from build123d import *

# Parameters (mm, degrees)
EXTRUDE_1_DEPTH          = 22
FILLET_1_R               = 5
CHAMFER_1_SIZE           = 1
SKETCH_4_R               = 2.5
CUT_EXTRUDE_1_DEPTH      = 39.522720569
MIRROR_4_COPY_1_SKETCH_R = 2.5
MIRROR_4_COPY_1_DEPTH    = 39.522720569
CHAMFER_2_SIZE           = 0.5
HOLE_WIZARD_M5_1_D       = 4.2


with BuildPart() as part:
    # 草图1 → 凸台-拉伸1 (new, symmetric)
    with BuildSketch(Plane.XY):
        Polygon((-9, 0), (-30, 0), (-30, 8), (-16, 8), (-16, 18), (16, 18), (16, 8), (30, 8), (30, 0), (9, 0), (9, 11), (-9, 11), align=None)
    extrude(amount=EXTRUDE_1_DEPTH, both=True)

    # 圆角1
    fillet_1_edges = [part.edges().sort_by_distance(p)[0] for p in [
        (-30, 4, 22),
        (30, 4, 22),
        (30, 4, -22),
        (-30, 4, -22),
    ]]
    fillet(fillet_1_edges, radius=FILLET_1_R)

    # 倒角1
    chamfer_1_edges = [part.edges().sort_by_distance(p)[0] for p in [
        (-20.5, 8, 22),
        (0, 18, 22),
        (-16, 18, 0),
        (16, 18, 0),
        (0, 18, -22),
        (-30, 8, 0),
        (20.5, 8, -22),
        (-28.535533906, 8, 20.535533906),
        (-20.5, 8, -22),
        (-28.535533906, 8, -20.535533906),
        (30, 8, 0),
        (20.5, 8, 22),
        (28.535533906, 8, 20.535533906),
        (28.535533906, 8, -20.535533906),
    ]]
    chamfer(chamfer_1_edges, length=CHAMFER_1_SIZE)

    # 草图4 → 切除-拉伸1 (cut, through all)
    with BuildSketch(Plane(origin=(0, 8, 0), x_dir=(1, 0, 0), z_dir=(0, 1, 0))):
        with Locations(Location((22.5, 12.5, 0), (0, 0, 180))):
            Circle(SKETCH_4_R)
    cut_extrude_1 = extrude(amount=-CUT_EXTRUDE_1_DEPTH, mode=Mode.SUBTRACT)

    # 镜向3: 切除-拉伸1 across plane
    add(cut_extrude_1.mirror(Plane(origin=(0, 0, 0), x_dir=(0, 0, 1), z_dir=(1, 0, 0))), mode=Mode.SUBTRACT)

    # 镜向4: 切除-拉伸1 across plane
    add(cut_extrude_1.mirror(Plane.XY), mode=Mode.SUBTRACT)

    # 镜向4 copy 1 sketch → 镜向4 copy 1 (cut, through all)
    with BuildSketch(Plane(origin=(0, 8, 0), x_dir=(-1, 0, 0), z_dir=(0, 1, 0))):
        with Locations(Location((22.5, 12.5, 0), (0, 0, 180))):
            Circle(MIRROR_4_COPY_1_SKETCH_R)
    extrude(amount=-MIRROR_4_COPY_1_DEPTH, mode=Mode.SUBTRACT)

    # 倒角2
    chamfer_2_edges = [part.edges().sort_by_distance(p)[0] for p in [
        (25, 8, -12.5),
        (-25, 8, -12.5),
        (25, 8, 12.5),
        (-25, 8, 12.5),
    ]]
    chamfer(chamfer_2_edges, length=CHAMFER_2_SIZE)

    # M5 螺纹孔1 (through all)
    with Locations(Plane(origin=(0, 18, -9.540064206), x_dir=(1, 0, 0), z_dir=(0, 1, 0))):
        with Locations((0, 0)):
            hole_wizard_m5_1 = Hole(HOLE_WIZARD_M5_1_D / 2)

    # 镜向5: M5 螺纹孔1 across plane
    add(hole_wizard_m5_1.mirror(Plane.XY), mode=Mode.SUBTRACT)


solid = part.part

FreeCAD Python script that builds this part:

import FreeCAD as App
import Part
import Sketcher


def edges_at(feature, points):
    """Names of the edges that pass closest to the given points."""
    edges = feature.Shape.Edges
    near = lambda p: min(range(len(edges)), key=lambda i: edges[i].distToShape(Part.Vertex(*p))[0])
    return sorted({f"Edge{near(p) + 1}" for p in points})

doc = App.newDocument("Part")
body = doc.addObject("PartDesign::Body", "Body")

# Sketch on XY plane
sketch1 = body.newObject("Sketcher::SketchObject", "Sketch")
sketch1.AttachmentSupport = (doc.getObject("XY_Plane"), [""])
sketch1.MapMode = "FlatFace"
sketch1.addGeometry(Part.LineSegment(App.Vector(-30, 0, 0), App.Vector(-9, 0, 0)), False)
sketch1.addGeometry(Part.LineSegment(App.Vector(-9, 0, 0), App.Vector(-9, 11, 0)), False)
sketch1.addGeometry(Part.LineSegment(App.Vector(-9, 11, 0), App.Vector(9, 11, 0)), False)
sketch1.addGeometry(Part.LineSegment(App.Vector(9, 11, 0), App.Vector(9, 0, 0)), False)
sketch1.addGeometry(Part.LineSegment(App.Vector(9, 0, 0), App.Vector(30, 0, 0)), False)
sketch1.addGeometry(Part.LineSegment(App.Vector(30, 0, 0), App.Vector(30, 8, 0)), False)
sketch1.addGeometry(Part.LineSegment(App.Vector(30, 8, 0), App.Vector(16, 8, 0)), False)
sketch1.addGeometry(Part.LineSegment(App.Vector(16, 8, 0), App.Vector(16, 18, 0)), False)
sketch1.addGeometry(Part.LineSegment(App.Vector(16, 18, 0), App.Vector(-16, 18, 0)), False)
sketch1.addGeometry(Part.LineSegment(App.Vector(-16, 18, 0), App.Vector(-16, 8, 0)), False)
sketch1.addGeometry(Part.LineSegment(App.Vector(-16, 8, 0), App.Vector(-30, 8, 0)), False)
sketch1.addGeometry(Part.LineSegment(App.Vector(-30, 8, 0), App.Vector(-30, 0, 0)), False)
sketch1.addConstraint(Sketcher.Constraint("Coincident", 0, 2, 1, 1))
sketch1.addConstraint(Sketcher.Constraint("Coincident", 1, 2, 2, 1))
sketch1.addConstraint(Sketcher.Constraint("Coincident", 2, 2, 3, 1))
sketch1.addConstraint(Sketcher.Constraint("Coincident", 3, 2, 4, 1))
sketch1.addConstraint(Sketcher.Constraint("Coincident", 4, 2, 5, 1))
sketch1.addConstraint(Sketcher.Constraint("Coincident", 5, 2, 6, 1))
sketch1.addConstraint(Sketcher.Constraint("Coincident", 6, 2, 7, 1))
sketch1.addConstraint(Sketcher.Constraint("Coincident", 7, 2, 8, 1))
sketch1.addConstraint(Sketcher.Constraint("Coincident", 8, 2, 9, 1))
sketch1.addConstraint(Sketcher.Constraint("Coincident", 9, 2, 10, 1))
sketch1.addConstraint(Sketcher.Constraint("Coincident", 10, 2, 11, 1))
sketch1.addConstraint(Sketcher.Constraint("Coincident", 11, 2, 0, 1))
sketch1.addConstraint(Sketcher.Constraint("Horizontal", 0))
sketch1.addConstraint(Sketcher.Constraint("Vertical", 1))
sketch1.addConstraint(Sketcher.Constraint("Horizontal", 2))
sketch1.addConstraint(Sketcher.Constraint("Vertical", 3))
sketch1.addConstraint(Sketcher.Constraint("Horizontal", 4))
sketch1.addConstraint(Sketcher.Constraint("Vertical", 5))
sketch1.addConstraint(Sketcher.Constraint("Horizontal", 6))
sketch1.addConstraint(Sketcher.Constraint("Vertical", 7))
sketch1.addConstraint(Sketcher.Constraint("Horizontal", 8))
sketch1.addConstraint(Sketcher.Constraint("Vertical", 9))
sketch1.addConstraint(Sketcher.Constraint("Horizontal", 10))
sketch1.addConstraint(Sketcher.Constraint("Vertical", 11))
sketch1.addConstraint(Sketcher.Constraint("Symmetric", 0, 2, 3, 2, -1, 1))
sketch1.addConstraint(Sketcher.Constraint("Symmetric", 6, 2, 9, 2, -2))
sketch1.addConstraint(Sketcher.Constraint("Symmetric", 4, 2, 11, 2, -2))
sketch1.addConstraint(Sketcher.Constraint("DistanceX", 0, 1, 0, 2, 21.0))
sketch1.addConstraint(Sketcher.Constraint("DistanceX", 2, 1, 2, 2, 18.0))
sketch1.addConstraint(Sketcher.Constraint("DistanceX", 6, 2, 6, 1, 14.0))
sketch1.addConstraint(Sketcher.Constraint("DistanceY", 1, 1, 1, 2, 11.0))
sketch1.addConstraint(Sketcher.Constraint("DistanceY", 5, 1, 5, 2, 8.0))
sketch1.addConstraint(Sketcher.Constraint("DistanceY", 7, 1, 7, 2, 10.0))
pad1 = body.newObject("PartDesign::Pad", "Pad")
pad1.Profile = sketch1
pad1.Length = 44
pad1.Midplane = True
doc.recompute()

fillet = body.newObject("PartDesign::Fillet", "Fillet")
fillet.Base = (pad1, edges_at(pad1, [
    (-30, 4, 22),
    (30, 4, 22),
    (30, 4, -22),
    (-30, 4, -22),
]))
fillet.Radius = 5
doc.recompute()

chamfer = body.newObject("PartDesign::Chamfer", "Chamfer")
chamfer.Base = (fillet, edges_at(fillet, [
    (-20.5, 8, 22),
    (0, 18, 22),
    (-16, 18, 0),
    (16, 18, 0),
    (0, 18, -22),
    (-30, 8, 0),
    (20.5, 8, -22),
    (-28.536, 8, 20.536),
    (-20.5, 8, -22),
    (-28.536, 8, -20.536),
    (30, 8, 0),
    (20.5, 8, 22),
    (28.536, 8, 20.536),
    (28.536, 8, -20.536),
]))
chamfer.Size = 1

# Sketch on XZ plane
sketch2 = body.newObject("Sketcher::SketchObject", "Sketch001")
sketch2.AttachmentSupport = (doc.getObject("XZ_Plane"), [""])
sketch2.MapMode = "FlatFace"
sketch2.AttachmentOffset = App.Placement(App.Vector(0, 0, -8), App.Rotation())
sketch2.addGeometry(Part.Circle(App.Vector(22.5, -12.5, 0), App.Vector(0, 0, 1), 2.5), False)
sketch2.addConstraint(Sketcher.Constraint("Diameter", 0, 5.0))
sketch2.addConstraint(Sketcher.Constraint("DistanceX", -1, 1, 0, 3, 22.5))
sketch2.addConstraint(Sketcher.Constraint("DistanceY", 0, 3, -1, 1, 12.5))
pocket1 = body.newObject("PartDesign::Pocket", "Pocket")
pocket1.Profile = sketch2
pocket1.Type = "ThroughAll"
pocket1.Reversed = True
doc.recompute()

mirrored = body.newObject("PartDesign::Mirrored", "Mirrored")
mirrored.Originals = [pocket1]
mirrored.MirrorPlane = (doc.getObject("YZ_Plane"), [""])
body.Tip = mirrored
doc.recompute()

mirrored2 = body.newObject("PartDesign::Mirrored", "Mirrored001")
mirrored2.Originals = [pocket1]
mirrored2.MirrorPlane = (doc.getObject("XY_Plane"), [""])
body.Tip = mirrored2

# Sketch on XZ plane
sketch3 = body.newObject("Sketcher::SketchObject", "Sketch002")
sketch3.AttachmentSupport = (doc.getObject("XZ_Plane"), [""])
sketch3.MapMode = "FlatFace"
sketch3.AttachmentOffset = App.Placement(App.Vector(0, 0, -8), App.Rotation())
sketch3.addGeometry(Part.Circle(App.Vector(-22.5, 12.5, 0), App.Vector(0, 0, 1), 2.5), False)
sketch3.addConstraint(Sketcher.Constraint("Diameter", 0, 5.0))
sketch3.addConstraint(Sketcher.Constraint("DistanceX", 0, 3, -1, 1, 22.5))
sketch3.addConstraint(Sketcher.Constraint("DistanceY", -1, 1, 0, 3, 12.5))
pocket2 = body.newObject("PartDesign::Pocket", "Pocket001")
pocket2.Profile = sketch3
pocket2.Type = "ThroughAll"
pocket2.Reversed = True
doc.recompute()

chamfer2 = body.newObject("PartDesign::Chamfer", "Chamfer001")
chamfer2.Base = (pocket2, edges_at(pocket2, [
    (25, 8, -12.5),
    (-25, 8, -12.5),
    (25, 8, 12.5),
    (-25, 8, 12.5),
]))
chamfer2.Size = 0.5

# Sketch on XZ plane
sketch4 = body.newObject("Sketcher::SketchObject", "Sketch003")
sketch4.AttachmentSupport = (doc.getObject("XZ_Plane"), [""])
sketch4.MapMode = "FlatFace"
sketch4.AttachmentOffset = App.Placement(App.Vector(0, 0, -18), App.Rotation())
sketch4.addGeometry(Part.Circle(App.Vector(0, -9.5, 0), App.Vector(0, 0, 1), 2.1), False)
sketch4.addConstraint(Sketcher.Constraint("PointOnObject", 0, 3, -2))
sketch4.addConstraint(Sketcher.Constraint("Diameter", 0, 4.2))
sketch4.addConstraint(Sketcher.Constraint("DistanceY", 0, 3, -1, 1, 9.540064))
doc.recompute()
hole = body.newObject("PartDesign::Hole", "Hole")
hole.Profile = sketch4
hole.ThreadType = "None"
hole.Diameter = 4.2
hole.DepthType = "ThroughAll"
hole.Reversed = True
doc.recompute()

mirrored3 = body.newObject("PartDesign::Mirrored", "Mirrored002")
mirrored3.Originals = [hole]
mirrored3.MirrorPlane = (doc.getObject("XY_Plane"), [""])
body.Tip = mirrored3

doc.recompute()
